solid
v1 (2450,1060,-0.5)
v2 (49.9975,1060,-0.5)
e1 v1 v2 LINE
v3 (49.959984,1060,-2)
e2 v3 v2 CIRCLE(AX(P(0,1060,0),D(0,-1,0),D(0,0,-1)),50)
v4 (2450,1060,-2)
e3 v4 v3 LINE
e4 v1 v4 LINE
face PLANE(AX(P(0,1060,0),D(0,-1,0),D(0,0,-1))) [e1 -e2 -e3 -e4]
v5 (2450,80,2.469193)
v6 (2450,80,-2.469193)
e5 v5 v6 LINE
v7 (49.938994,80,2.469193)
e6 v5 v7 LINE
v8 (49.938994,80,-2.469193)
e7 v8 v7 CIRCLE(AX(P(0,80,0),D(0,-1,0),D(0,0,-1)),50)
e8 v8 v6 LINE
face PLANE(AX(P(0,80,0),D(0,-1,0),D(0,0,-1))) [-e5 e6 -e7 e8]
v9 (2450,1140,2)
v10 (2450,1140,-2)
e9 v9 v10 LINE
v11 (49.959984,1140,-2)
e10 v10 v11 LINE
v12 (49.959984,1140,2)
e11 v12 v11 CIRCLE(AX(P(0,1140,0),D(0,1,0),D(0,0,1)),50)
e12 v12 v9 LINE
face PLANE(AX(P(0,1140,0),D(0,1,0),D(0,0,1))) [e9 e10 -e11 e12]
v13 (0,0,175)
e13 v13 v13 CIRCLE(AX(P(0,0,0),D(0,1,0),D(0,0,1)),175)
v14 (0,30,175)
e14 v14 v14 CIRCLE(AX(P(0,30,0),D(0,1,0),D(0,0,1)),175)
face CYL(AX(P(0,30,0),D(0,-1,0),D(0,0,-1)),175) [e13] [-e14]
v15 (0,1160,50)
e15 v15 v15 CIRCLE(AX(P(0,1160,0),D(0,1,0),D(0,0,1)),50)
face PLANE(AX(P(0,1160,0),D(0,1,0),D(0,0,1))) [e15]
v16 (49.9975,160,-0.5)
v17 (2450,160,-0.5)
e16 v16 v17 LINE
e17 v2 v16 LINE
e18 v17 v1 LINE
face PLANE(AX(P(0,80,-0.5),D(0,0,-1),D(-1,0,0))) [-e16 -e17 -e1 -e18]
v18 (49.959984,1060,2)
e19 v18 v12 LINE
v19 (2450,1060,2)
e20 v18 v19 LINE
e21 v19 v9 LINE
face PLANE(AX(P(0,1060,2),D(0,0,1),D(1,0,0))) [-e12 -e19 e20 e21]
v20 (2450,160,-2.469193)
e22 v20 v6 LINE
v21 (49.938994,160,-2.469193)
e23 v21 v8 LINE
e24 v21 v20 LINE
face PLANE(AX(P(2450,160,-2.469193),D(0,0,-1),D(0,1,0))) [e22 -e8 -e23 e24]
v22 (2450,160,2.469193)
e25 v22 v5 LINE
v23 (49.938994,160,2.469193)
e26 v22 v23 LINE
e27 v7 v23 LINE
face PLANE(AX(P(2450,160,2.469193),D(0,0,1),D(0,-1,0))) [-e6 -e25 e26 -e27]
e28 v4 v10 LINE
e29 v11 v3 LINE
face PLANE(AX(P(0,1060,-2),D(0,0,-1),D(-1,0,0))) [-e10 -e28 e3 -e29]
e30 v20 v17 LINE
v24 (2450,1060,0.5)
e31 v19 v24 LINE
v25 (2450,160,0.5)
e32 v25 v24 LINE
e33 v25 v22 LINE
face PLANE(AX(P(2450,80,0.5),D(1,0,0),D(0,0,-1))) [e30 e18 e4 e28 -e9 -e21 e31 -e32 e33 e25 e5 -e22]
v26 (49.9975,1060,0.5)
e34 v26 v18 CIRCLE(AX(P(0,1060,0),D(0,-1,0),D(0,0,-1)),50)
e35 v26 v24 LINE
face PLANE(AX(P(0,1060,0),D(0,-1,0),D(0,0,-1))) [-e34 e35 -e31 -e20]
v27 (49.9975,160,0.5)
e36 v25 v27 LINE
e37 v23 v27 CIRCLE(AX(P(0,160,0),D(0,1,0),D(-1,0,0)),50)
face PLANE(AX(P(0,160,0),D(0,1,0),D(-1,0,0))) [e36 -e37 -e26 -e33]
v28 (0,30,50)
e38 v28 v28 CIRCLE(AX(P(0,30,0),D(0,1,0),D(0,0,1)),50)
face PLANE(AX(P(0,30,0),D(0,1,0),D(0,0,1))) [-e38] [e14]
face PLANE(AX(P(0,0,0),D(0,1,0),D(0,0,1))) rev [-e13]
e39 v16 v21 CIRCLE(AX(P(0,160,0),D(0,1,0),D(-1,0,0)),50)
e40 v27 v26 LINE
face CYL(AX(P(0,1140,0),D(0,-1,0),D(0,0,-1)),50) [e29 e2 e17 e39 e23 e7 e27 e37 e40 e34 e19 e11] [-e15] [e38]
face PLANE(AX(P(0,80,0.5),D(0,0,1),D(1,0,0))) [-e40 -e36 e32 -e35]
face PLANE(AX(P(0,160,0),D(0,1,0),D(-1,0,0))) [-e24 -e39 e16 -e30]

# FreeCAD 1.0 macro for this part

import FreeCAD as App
import Part
import Sketcher
from FreeCAD import Vector


def add_polygon(sketch, points):
    """Adds a closed chain of lines whose ends are joined by coincident constraints."""
    first, n = sketch.GeometryCount, len(points)
    for a, b in zip(points, points[1:] + points[:1]):
        sketch.addGeometry(Part.LineSegment(App.Vector(*a, 0), App.Vector(*b, 0)), False)
    for i in range(n):
        sketch.addConstraint(Sketcher.Constraint("Coincident", first + i, 2, first + (i + 1) % n, 1))

doc = App.newDocument("Part")
body = doc.addObject("PartDesign::Body", "Body")

# Sketch on XZ plane
sketch1 = body.newObject("Sketcher::SketchObject", "Sketch")
sketch1.AttachmentSupport = (doc.getObject("XZ_Plane"), [""])
sketch1.MapMode = "FlatFace"
sketch1.addGeometry(Part.Circle(Vector(0, 0, 0), Vector(0, 0, 1), 175), False)
sketch1.addConstraint([
    Sketcher.Constraint("Coincident", 0, 3, -1, 1),
    Sketcher.Constraint("Diameter", 0, 350.0),
])
pad1 = body.newObject("PartDesign::Pad", "Pad")
pad1.Profile = sketch1
pad1.Length = 30
pad1.Reversed = True

# Sketch on XZ plane
sketch2 = body.newObject("Sketcher::SketchObject", "Sketch001")
sketch2.AttachmentSupport = (doc.getObject("XZ_Plane"), [""])
sketch2.MapMode = "FlatFace"
sketch2.AttachmentOffset = App.Placement(Vector(0, 0, -30), App.Rotation())
sketch2.addGeometry(Part.Circle(Vector(0, 0, 0), Vector(0, 0, 1), 50), False)
sketch2.addConstraint([
    Sketcher.Constraint("Coincident", 0, 3, -1, 1),
    Sketcher.Constraint("Diameter", 0, 100.0),
])
pad2 = body.newObject("PartDesign::Pad", "Pad001")
pad2.Profile = sketch2
pad2.Length = 1110
pad2.Reversed = True

# Sketch on XZ plane
sketch3 = body.newObject("Sketcher::SketchObject", "Sketch002")
sketch3.AttachmentSupport = (doc.getObject("XZ_Plane"), [""])
sketch3.MapMode = "FlatFace"
sketch3.AttachmentOffset = App.Placement(Vector(0, 0, -1140), App.Rotation())
add_polygon(sketch3, [(0, -0.5), (0, 0.5), (2450, 0.5), (2450, -0.5)])  # lines 0-3
sketch3.addConstraint([
    Sketcher.Constraint("Vertical", 0),
    Sketcher.Constraint("Horizontal", 1),
    Sketcher.Constraint("Vertical", 2),
    Sketcher.Constraint("Horizontal", 3),
    Sketcher.Constraint("Symmetric", 0, 2, 3, 2, -1, 1),
    Sketcher.Constraint("DistanceX", 1, 1, 1, 2, 2450.0),
    Sketcher.Constraint("DistanceY", 0, 1, 0, 2, 1.0),
])
pad3 = body.newObject("PartDesign::Pad", "Pad002")
pad3.Profile = sketch3
pad3.Length = 1060

# Sketch on XZ plane
sketch4 = body.newObject("Sketcher::SketchObject", "Sketch003")
sketch4.AttachmentSupport = (doc.getObject("XZ_Plane"), [""])
sketch4.MapMode = "FlatFace"
sketch4.AttachmentOffset = App.Placement(Vector(0, 0, -1140), App.Rotation())
add_polygon(sketch4, [(0, -2), (0, 2), (2450, 2), (2450, -2)])  # lines 0-3
sketch4.addConstraint([
    Sketcher.Constraint("Vertical", 0),
    Sketcher.Constraint("Horizontal", 1),
    Sketcher.Constraint("Vertical", 2),
    Sketcher.Constraint("Horizontal", 3),
    Sketcher.Constraint("Symmetric", 0, 2, 3, 2, -1, 1),
    Sketcher.Constraint("DistanceX", 1, 1, 1, 2, 2450.0),
    Sketcher.Constraint("DistanceY", 0, 1, 0, 2, 4.0),
])
pad4 = body.newObject("PartDesign::Pad", "Pad003")
pad4.Profile = sketch4
pad4.Length = 80

# Sketch on XZ plane
sketch5 = body.newObject("Sketcher::SketchObject", "Sketch004")
sketch5.AttachmentSupport = (doc.getObject("XZ_Plane"), [""])
sketch5.MapMode = "FlatFace"
sketch5.AttachmentOffset = App.Placement(Vector(0, 0, -80), App.Rotation())
add_polygon(sketch5, [(2450, -2.469193), (2450, 2.469193), (0, 2.469193), (0, -2.469193)])  # lines 0-3
sketch5.addConstraint([
    Sketcher.Constraint("Vertical", 0),
    Sketcher.Constraint("Horizontal", 1),
    Sketcher.Constraint("Vertical", 2),
    Sketcher.Constraint("Horizontal", 3),
    Sketcher.Constraint("Symmetric", 1, 2, 2, 2, -1, 1),
    Sketcher.Constraint("DistanceX", 1, 2, 1, 1, 2450.0),
    Sketcher.Constraint("DistanceY", 0, 1, 0, 2, 4.938386),
])
pad5 = body.newObject("PartDesign::Pad", "Pad004")
pad5.Profile = sketch5
pad5.Length = 80
pad5.Reversed = True

# Sketch on XZ plane
sketch6 = body.newObject("Sketcher::SketchObject", "Sketch005")
sketch6.AttachmentSupport = (doc.getObject("XZ_Plane"), [""])
sketch6.MapMode = "FlatFace"
sketch6.AttachmentOffset = App.Placement(Vector(0, 0, -1140), App.Rotation())
sketch6.addGeometry(Part.Circle(Vector(0, 0, 0), Vector(0, 0, 1), 50), False)
sketch6.addConstraint([
    Sketcher.Constraint("Coincident", 0, 3, -1, 1),
    Sketcher.Constraint("Diameter", 0, 100.0),
])
pad6 = body.newObject("PartDesign::Pad", "Pad005")
pad6.Profile = sketch6
pad6.Length = 20
pad6.Reversed = True

doc.recompute()
